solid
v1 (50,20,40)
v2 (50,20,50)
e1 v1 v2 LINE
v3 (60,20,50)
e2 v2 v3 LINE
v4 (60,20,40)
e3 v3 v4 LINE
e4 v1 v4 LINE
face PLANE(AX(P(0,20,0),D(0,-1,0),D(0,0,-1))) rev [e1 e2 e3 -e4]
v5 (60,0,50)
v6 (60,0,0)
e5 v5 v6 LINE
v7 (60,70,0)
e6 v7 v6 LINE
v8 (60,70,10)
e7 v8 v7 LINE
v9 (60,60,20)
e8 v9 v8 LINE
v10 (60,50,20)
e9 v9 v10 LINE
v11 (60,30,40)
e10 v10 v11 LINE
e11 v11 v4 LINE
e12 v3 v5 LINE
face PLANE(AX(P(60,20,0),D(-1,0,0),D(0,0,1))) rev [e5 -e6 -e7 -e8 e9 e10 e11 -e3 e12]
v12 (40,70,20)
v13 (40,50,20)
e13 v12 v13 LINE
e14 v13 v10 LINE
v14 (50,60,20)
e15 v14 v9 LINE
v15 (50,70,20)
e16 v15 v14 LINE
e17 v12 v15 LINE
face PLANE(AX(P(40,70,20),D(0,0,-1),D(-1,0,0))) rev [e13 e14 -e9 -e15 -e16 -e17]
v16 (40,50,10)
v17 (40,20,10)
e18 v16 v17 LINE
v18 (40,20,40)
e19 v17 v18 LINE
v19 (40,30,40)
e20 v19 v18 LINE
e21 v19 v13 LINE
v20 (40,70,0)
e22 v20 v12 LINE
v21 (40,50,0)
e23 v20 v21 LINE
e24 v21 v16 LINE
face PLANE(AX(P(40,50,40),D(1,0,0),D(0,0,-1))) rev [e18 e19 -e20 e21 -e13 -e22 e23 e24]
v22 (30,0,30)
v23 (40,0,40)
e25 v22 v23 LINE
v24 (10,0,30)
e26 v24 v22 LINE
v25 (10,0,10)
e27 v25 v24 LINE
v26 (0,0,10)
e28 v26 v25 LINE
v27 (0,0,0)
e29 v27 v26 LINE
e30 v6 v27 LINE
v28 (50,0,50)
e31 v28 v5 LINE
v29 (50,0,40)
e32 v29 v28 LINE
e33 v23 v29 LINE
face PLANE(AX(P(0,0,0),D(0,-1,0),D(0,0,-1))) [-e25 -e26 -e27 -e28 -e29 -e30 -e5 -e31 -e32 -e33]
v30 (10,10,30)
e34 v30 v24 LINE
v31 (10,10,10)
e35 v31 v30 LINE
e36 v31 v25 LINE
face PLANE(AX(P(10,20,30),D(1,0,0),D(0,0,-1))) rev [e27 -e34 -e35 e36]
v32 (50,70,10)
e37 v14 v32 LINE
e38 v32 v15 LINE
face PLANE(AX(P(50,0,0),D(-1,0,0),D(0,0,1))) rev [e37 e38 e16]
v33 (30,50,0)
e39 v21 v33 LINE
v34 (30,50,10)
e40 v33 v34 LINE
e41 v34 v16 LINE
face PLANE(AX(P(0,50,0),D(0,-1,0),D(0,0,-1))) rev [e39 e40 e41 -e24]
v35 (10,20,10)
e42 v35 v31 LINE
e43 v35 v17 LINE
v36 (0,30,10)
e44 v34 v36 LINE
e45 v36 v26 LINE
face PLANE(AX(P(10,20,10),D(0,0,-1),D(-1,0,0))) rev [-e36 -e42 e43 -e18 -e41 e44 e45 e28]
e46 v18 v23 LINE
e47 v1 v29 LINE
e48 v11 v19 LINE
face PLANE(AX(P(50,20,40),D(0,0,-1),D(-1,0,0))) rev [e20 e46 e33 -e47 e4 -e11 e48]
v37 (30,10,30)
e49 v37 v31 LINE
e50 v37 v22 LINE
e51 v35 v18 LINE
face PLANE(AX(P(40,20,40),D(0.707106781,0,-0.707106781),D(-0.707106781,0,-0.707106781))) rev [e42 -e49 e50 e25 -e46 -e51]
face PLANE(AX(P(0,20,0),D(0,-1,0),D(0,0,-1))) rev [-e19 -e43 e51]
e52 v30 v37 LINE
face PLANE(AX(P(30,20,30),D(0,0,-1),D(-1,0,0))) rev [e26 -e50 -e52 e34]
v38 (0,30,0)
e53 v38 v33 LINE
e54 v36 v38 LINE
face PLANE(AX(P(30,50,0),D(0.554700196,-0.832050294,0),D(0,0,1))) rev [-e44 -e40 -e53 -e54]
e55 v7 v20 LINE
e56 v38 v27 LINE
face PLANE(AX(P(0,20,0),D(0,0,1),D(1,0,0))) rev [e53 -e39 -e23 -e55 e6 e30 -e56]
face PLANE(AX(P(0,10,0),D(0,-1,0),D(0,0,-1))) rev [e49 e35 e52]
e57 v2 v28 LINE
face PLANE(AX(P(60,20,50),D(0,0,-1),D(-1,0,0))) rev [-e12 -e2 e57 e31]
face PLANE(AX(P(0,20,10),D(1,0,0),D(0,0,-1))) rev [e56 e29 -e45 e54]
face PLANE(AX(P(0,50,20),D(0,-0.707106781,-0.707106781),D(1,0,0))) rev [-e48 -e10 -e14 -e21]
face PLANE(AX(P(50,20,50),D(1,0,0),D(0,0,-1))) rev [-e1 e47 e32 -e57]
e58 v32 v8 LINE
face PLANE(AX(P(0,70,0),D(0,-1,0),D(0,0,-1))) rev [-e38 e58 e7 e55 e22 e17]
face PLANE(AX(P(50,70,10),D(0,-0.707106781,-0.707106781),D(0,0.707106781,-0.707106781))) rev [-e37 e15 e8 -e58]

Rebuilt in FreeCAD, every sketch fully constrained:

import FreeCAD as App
import Part
import Sketcher

V = App.Vector
Q = App.Units.Quantity


def edges_at(feature, points):
    """Names of the edges that pass closest to the given points."""
    edges = feature.Shape.Edges
    near = lambda p: min(range(len(edges)), key=lambda i: edges[i].distToShape(Part.Vertex(*p))[0])
    return sorted({f"Edge{near(p) + 1}" for p in points})

doc = App.newDocument("Part")
body = doc.addObject("PartDesign::Body", "Body")

sketch1 = body.newObject("Sketcher::SketchObject", "Sketch")
sketch1.AttachmentSupport = (doc.getObject("XZ_Plane"), [""])
sketch1.MapMode = "FlatFace"
sketch1.addGeometry([
    Part.LineSegment(V(60, 0, 0), V(0, 0, 0)),
    Part.LineSegment(V(0, 0, 0), V(0, 10, 0)),
    Part.LineSegment(V(0, 10, 0), V(10, 10, 0)),
    Part.LineSegment(V(10, 10, 0), V(10, 30, 0)),
    Part.LineSegment(V(10, 30, 0), V(30, 30, 0)),
    Part.LineSegment(V(30, 30, 0), V(40, 40, 0)),
    Part.LineSegment(V(40, 40, 0), V(50, 40, 0)),
    Part.LineSegment(V(50, 40, 0), V(50, 50, 0)),
    Part.LineSegment(V(50, 50, 0), V(60, 50, 0)),
    Part.LineSegment(V(60, 50, 0), V(60, 0, 0)),
], False)
sketch1.addConstraint([
    Sketcher.Constraint("Coincident", 0, 2, 1, 1),
    Sketcher.Constraint("Coincident", 1, 2, 2, 1),
    Sketcher.Constraint("Coincident", 2, 2, 3, 1),
    Sketcher.Constraint("Coincident", 3, 2, 4, 1),
    Sketcher.Constraint("Coincident", 4, 2, 5, 1),
    Sketcher.Constraint("Coincident", 5, 2, 6, 1),
    Sketcher.Constraint("Coincident", 6, 2, 7, 1),
    Sketcher.Constraint("Coincident", 7, 2, 8, 1),
    Sketcher.Constraint("Coincident", 8, 2, 9, 1),
    Sketcher.Constraint("Coincident", 9, 2, 0, 1),
    Sketcher.Constraint("Horizontal", 0),
    Sketcher.Constraint("Vertical", 1),
    Sketcher.Constraint("Horizontal", 2),
    Sketcher.Constraint("Vertical", 3),
    Sketcher.Constraint("Horizontal", 4),
    Sketcher.Constraint("Horizontal", 6),
    Sketcher.Constraint("Vertical", 7),
    Sketcher.Constraint("Horizontal", 8),
    Sketcher.Constraint("Vertical", 9),
    Sketcher.Constraint("Coincident", 0, 2, -1, 1),
    Sketcher.Constraint("Equal", 2, 6),
    Sketcher.Constraint("Equal", 6, 8),
    Sketcher.Constraint("Equal", 8, 1),
    Sketcher.Constraint("Equal", 4, 3),
    Sketcher.Constraint("Equal", 1, 7),
    Sketcher.Constraint("DistanceX", 0, 2, 0, 1, Q("60 mm")),
    Sketcher.Constraint("DistanceX", 2, 1, 2, 2, Q("10 mm")),
    Sketcher.Constraint("DistanceX", 4, 1, 4, 2, Q("20 mm")),
    Sketcher.Constraint("DistanceY", 9, 2, 9, 1, Q("50 mm")),
])
pad1 = body.newObject("PartDesign::Pad", "Pad")
pad1.Profile = sketch1
pad1.Length = 20
pad1.Reversed = True

sketch2 = body.newObject("Sketcher::SketchObject", "Sketch001")
sketch2.AttachmentSupport = (doc.getObject("XZ_Plane"), [""])
sketch2.MapMode = "FlatFace"
sketch2.AttachmentOffset = App.Placement(V(0, 0, -20), App.Rotation())
sketch2.addGeometry([
    Part.LineSegment(V(30, 30, 0), V(10, 10, 0)),
    Part.LineSegment(V(10, 10, 0), V(10, 30, 0)),
    Part.LineSegment(V(10, 30, 0), V(30, 30, 0)),
], False)
sketch2.addConstraint([
    Sketcher.Constraint("Coincident", 0, 2, 1, 1),
    Sketcher.Constraint("Coincident", 1, 2, 2, 1),
    Sketcher.Constraint("Coincident", 2, 2, 0, 1),
    Sketcher.Constraint("Vertical", 1),
    Sketcher.Constraint("Horizontal", 2),
    Sketcher.Constraint("Equal", 2, 1),
    Sketcher.Constraint("DistanceX", 2, 1, 2, 2, Q("20 mm")),
    Sketcher.Constraint("DistanceX", -1, 1, 0, 2, Q("10 mm")),
    Sketcher.Constraint("DistanceY", -1, 1, 0, 2, Q("10 mm")),
])
pocket1 = body.newObject("PartDesign::Pocket", "Pocket")
pocket1.Profile = sketch2
pocket1.Length = 10
pocket1.Reversed = True

sketch3 = body.newObject("Sketcher::SketchObject", "Sketch002")
sketch3.AttachmentSupport = (doc.getObject("XZ_Plane"), [""])
sketch3.MapMode = "FlatFace"
sketch3.AttachmentOffset = App.Placement(V(0, 0, -20), App.Rotation())
sketch3.addGeometry([
    Part.LineSegment(V(60, 0, 0), V(0, 0, 0)),
    Part.LineSegment(V(0, 0, 0), V(0, 10, 0)),
    Part.LineSegment(V(0, 10, 0), V(40, 10, 0)),
    Part.LineSegment(V(40, 10, 0), V(40, 40, 0)),
    Part.LineSegment(V(40, 40, 0), V(60, 40, 0)),
    Part.LineSegment(V(60, 40, 0), V(60, 0, 0)),
], False)
sketch3.addConstraint([
    Sketcher.Constraint("Coincident", 0, 2, 1, 1),
    Sketcher.Constraint("Coincident", 1, 2, 2, 1),
    Sketcher.Constraint("Coincident", 2, 2, 3, 1),
    Sketcher.Constraint("Coincident", 3, 2, 4, 1),
    Sketcher.Constraint("Coincident", 4, 2, 5, 1),
    Sketcher.Constraint("Coincident", 5, 2, 0, 1),
    Sketcher.Constraint("Horizontal", 0),
    Sketcher.Constraint("Vertical", 1),
    Sketcher.Constraint("Horizontal", 2),
    Sketcher.Constraint("Vertical", 3),
    Sketcher.Constraint("Horizontal", 4),
    Sketcher.Constraint("Vertical", 5),
    Sketcher.Constraint("Coincident", 0, 2, -1, 1),
    Sketcher.Constraint("Equal", 2, 5),
    Sketcher.Constraint("DistanceX", 0, 2, 0, 1, Q("60 mm")),
    Sketcher.Constraint("DistanceX", 2, 1, 2, 2, Q("40 mm")),
    Sketcher.Constraint("DistanceY", 1, 1, 1, 2, Q("10 mm")),
])
pad2 = body.newObject("PartDesign::Pad", "Pad001")
pad2.Profile = sketch3
pad2.Length = 30
pad2.Reversed = True
doc.recompute()

chamfer = body.newObject("PartDesign::Chamfer", "Chamfer")
chamfer.Base = (pad2, edges_at(pad2, [(50, 50, 40)]))
chamfer.Size = 20
doc.recompute()

chamfer2 = body.newObject("PartDesign::Chamfer", "Chamfer001")
chamfer2.Base = (chamfer, edges_at(chamfer, [(0, 50, 5)]))
chamfer2.ChamferType = "Two distances"
chamfer2.Size = 20
chamfer2.Size2 = 30
chamfer2.FlipDirection = True

sketch4 = body.newObject("Sketcher::SketchObject", "Sketch003")
sketch4.AttachmentSupport = (doc.getObject("XZ_Plane"), [""])
sketch4.MapMode = "FlatFace"
sketch4.AttachmentOffset = App.Placement(V(0, 0, -50), App.Rotation())
sketch4.addGeometry([
    Part.LineSegment(V(40, 0, 0), V(40, 20, 0)),
    Part.LineSegment(V(40, 20, 0), V(60, 20, 0)),
    Part.LineSegment(V(60, 20, 0), V(60, 0, 0)),
    Part.LineSegment(V(60, 0, 0), V(40, 0, 0)),
], False)
sketch4.addConstraint([
    Sketcher.Constraint("Coincident", 0, 2, 1, 1),
    Sketcher.Constraint("Coincident", 1, 2, 2, 1),
    Sketcher.Constraint("Coincident", 2, 2, 3, 1),
    Sketcher.Constraint("Coincident", 3, 2, 0, 1),
    Sketcher.Constraint("Vertical", 0),
    Sketcher.Constraint("Horizontal", 1),
    Sketcher.Constraint("Vertical", 2),
    Sketcher.Constraint("Horizontal", 3),
    Sketcher.Constraint("PointOnObject", 2, 2, -1),
    Sketcher.Constraint("Equal", 3, 0),
    Sketcher.Constraint("DistanceX", 1, 1, 1, 2, Q("20 mm")),
    Sketcher.Constraint("DistanceX", -1, 1, 0, 2, Q("40 mm")),
])
pad3 = body.newObject("PartDesign::Pad", "Pad002")
pad3.Profile = sketch4
pad3.Length = 20
pad3.Reversed = True

sketch5 = body.newObject("Sketcher::SketchObject", "Sketch004")
sketch5.AttachmentSupport = (doc.getObject("YZ_Plane"), [""])
sketch5.MapMode = "FlatFace"
sketch5.AttachmentOffset = App.Placement(V(0, 0, 60), App.Rotation())
sketch5.addGeometry([
    Part.LineSegment(V(70, 10, 0), V(70, 20, 0)),
    Part.LineSegment(V(70, 20, 0), V(60, 20, 0)),
    Part.LineSegment(V(60, 20, 0), V(70, 10, 0)),
], False)
sketch5.addConstraint([
    Sketcher.Constraint("Coincident", 0, 2, 1, 1),
    Sketcher.Constraint("Coincident", 1, 2, 2, 1),
    Sketcher.Constraint("Coincident", 2, 2, 0, 1),
    Sketcher.Constraint("Vertical", 0),
    Sketcher.Constraint("Horizontal", 1),
    Sketcher.Constraint("Equal", 1, 0),
    Sketcher.Constraint("DistanceX", 1, 2, 1, 1, Q("10 mm")),
    Sketcher.Constraint("DistanceX", -1, 1, 0, 2, Q("70 mm")),
    Sketcher.Constraint("DistanceY", -1, 1, 0, 2, Q("20 mm")),
])
pocket2 = body.newObject("PartDesign::Pocket", "Pocket001")
pocket2.Profile = sketch5
pocket2.Length = 10

doc.recompute()
